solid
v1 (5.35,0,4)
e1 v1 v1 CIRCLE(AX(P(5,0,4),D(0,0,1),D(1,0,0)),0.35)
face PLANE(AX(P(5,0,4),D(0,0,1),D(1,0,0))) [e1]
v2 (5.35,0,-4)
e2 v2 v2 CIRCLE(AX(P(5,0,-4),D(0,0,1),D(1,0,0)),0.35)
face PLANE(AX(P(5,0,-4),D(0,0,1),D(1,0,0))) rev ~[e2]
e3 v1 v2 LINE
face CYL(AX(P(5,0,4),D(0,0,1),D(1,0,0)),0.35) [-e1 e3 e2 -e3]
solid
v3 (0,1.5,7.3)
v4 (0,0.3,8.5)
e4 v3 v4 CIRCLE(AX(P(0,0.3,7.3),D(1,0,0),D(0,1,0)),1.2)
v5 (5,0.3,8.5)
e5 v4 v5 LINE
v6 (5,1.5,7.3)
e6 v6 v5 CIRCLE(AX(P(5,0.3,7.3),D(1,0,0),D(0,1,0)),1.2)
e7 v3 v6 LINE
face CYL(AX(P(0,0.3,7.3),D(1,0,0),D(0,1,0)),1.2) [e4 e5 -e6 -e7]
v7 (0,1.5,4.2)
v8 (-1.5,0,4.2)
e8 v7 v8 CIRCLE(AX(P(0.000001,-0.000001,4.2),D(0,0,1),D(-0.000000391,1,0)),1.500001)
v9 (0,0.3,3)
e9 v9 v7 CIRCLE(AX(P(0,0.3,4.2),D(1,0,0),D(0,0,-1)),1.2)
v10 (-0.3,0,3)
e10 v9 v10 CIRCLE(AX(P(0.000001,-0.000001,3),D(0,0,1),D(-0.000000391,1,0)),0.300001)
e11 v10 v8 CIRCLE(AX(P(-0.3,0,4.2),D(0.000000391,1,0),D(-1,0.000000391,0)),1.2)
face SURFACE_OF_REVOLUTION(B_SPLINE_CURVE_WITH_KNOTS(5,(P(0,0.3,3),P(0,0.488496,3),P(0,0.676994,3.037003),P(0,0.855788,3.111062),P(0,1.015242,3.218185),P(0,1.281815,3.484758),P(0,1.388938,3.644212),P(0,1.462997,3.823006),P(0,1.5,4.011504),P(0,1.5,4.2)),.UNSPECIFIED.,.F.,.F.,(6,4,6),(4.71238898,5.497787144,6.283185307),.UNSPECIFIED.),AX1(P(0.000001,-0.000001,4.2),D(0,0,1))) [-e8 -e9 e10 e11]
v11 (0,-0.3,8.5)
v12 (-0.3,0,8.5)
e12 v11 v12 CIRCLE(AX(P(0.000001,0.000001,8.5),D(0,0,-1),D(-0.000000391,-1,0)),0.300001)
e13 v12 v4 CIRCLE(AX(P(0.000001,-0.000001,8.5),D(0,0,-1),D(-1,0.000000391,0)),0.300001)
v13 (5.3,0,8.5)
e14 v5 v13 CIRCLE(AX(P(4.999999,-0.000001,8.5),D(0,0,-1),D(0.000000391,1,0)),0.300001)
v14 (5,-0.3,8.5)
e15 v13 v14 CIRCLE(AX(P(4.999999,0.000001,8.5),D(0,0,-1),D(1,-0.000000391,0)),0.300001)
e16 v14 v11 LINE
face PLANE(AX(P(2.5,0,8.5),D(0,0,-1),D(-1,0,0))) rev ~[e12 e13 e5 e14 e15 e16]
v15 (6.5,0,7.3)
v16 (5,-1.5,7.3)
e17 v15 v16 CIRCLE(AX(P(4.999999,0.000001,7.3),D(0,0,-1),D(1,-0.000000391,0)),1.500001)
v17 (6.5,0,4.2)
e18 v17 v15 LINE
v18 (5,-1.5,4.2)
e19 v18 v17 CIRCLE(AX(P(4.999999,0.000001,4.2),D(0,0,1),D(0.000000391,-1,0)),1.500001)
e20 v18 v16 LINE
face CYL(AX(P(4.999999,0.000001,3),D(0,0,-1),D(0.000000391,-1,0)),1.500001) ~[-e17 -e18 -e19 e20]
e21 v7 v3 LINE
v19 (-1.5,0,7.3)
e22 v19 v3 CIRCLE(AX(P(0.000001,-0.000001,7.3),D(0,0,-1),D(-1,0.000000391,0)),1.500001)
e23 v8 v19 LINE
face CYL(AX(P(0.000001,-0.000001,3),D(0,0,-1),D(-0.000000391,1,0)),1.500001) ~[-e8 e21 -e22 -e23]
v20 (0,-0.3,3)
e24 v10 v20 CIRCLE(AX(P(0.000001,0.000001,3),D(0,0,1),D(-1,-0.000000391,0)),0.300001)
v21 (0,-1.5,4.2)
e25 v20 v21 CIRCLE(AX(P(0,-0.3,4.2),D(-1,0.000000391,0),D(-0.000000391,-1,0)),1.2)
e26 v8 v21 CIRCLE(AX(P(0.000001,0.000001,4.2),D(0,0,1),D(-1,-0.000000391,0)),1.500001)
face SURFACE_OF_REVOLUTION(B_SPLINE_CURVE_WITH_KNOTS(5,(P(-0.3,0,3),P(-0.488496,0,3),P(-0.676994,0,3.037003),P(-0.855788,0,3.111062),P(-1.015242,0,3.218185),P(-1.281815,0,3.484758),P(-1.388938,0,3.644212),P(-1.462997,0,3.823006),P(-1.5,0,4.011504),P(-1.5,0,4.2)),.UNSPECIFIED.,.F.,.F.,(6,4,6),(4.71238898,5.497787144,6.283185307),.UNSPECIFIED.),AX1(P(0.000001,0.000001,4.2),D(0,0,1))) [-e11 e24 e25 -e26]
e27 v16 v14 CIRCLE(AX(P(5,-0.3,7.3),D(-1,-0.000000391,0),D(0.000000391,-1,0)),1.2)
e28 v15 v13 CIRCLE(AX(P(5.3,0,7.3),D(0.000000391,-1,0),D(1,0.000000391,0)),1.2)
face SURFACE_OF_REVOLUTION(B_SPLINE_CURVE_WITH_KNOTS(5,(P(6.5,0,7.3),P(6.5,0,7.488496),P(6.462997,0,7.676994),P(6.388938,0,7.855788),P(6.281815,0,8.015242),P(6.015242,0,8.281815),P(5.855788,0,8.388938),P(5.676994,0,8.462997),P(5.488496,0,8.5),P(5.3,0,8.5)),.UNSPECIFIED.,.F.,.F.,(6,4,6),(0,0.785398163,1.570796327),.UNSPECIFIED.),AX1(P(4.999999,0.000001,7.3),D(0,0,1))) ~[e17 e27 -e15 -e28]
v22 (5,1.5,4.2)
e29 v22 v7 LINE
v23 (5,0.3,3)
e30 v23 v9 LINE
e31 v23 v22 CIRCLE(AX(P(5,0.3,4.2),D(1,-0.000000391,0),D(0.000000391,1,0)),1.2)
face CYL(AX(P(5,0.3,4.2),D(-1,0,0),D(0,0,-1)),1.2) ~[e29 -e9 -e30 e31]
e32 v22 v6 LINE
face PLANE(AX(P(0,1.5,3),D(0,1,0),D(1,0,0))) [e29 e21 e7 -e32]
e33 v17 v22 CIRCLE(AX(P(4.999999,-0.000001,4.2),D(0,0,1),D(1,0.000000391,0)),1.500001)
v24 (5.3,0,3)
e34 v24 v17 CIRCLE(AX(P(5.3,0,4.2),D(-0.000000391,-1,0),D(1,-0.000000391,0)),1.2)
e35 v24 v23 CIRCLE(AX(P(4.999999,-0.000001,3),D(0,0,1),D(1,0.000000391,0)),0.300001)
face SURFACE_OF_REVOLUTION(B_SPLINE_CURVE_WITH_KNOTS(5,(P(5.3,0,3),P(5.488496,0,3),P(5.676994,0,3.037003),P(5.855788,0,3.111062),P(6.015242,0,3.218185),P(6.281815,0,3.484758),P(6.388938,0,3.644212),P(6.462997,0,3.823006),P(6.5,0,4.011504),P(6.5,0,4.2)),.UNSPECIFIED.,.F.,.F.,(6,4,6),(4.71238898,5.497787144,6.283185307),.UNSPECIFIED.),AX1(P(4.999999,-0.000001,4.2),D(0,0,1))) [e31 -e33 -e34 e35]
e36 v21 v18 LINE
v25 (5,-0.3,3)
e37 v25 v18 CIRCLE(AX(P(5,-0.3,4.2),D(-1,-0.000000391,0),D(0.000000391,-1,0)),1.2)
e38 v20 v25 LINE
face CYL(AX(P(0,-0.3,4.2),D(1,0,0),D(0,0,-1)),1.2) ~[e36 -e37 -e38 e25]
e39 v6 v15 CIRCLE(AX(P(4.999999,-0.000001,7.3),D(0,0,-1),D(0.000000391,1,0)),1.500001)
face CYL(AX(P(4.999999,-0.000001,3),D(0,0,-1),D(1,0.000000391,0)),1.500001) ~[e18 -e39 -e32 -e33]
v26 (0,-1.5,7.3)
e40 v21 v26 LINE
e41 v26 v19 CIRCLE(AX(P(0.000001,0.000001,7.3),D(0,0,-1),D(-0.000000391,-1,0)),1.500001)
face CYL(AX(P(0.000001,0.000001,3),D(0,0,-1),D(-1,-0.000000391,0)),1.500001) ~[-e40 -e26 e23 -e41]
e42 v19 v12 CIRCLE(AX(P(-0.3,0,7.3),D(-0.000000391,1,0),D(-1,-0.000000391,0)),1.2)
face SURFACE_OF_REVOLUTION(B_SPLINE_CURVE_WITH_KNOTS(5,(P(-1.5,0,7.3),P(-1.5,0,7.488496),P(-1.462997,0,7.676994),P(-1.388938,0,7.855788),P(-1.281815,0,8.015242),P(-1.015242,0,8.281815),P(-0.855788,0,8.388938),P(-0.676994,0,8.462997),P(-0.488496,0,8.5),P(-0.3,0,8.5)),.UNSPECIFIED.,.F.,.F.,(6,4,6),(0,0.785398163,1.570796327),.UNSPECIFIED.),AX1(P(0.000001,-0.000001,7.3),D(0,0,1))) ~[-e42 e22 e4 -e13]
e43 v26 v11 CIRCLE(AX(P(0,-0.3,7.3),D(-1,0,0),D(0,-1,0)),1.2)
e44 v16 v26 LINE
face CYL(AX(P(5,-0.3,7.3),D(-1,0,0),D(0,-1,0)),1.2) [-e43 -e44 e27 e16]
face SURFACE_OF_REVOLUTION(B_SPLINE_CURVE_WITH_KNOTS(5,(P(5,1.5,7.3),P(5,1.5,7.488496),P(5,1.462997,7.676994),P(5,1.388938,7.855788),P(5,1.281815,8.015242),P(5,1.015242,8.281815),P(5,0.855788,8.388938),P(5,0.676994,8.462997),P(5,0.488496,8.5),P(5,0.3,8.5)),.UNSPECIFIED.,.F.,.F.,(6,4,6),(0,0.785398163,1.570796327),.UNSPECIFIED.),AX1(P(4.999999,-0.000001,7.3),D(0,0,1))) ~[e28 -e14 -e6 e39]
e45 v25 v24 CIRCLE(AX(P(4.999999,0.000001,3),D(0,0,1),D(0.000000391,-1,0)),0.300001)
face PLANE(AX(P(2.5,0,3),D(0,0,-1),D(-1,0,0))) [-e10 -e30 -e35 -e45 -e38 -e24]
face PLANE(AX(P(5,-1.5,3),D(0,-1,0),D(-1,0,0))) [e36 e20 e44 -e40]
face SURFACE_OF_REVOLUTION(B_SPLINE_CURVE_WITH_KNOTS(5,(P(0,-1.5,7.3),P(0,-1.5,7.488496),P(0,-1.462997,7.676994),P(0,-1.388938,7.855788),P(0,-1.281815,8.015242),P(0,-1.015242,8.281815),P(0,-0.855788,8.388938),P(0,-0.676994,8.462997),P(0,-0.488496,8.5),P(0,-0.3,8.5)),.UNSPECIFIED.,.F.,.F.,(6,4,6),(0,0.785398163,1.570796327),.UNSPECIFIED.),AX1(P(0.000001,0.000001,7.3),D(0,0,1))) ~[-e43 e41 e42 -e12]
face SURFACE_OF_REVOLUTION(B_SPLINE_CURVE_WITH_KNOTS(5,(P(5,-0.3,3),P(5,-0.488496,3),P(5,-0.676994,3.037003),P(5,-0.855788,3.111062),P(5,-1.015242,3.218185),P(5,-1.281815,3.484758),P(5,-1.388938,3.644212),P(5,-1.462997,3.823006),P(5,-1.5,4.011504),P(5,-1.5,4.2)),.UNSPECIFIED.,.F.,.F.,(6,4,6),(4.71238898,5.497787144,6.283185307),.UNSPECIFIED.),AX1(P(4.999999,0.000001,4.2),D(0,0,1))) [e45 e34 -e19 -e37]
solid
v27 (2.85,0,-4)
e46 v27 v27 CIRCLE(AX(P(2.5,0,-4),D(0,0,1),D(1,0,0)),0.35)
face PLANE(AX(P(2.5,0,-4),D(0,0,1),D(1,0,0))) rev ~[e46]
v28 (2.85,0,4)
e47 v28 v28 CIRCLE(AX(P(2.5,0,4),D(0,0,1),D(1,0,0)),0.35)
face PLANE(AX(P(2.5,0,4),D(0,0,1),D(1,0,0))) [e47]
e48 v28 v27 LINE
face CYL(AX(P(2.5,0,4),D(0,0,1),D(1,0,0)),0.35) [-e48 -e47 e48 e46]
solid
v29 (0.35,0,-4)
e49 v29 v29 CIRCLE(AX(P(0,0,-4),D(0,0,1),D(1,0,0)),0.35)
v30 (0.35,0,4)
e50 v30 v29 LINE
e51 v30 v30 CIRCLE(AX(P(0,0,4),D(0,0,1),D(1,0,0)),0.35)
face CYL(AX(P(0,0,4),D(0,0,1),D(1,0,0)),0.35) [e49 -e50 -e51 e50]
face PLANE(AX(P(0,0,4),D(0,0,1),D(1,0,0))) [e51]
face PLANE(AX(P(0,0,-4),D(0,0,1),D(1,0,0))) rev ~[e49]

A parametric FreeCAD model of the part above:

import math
import FreeCAD as App
import Part
import Sketcher
Q = App.Units.Quantity


def edges_at(feature, points):
    """Names of the edges that pass closest to the given points."""
    edges = feature.Shape.Edges
    near = lambda p: min(range(len(edges)), key=lambda i: edges[i].distToShape(Part.Vertex(*p))[0])
    return sorted({f"Edge{near(p) + 1}" for p in points})

doc = App.newDocument("Part")
body = doc.addObject("PartDesign::Body", "Body")
body.AllowCompound = True

# Sketch on XY plane
sketch1 = doc.addObject("Sketcher::SketchObject", "Sketch")
body.addObject(sketch1)
sketch1.AttachmentSupport = (doc.XY_Plane, [""])
sketch1.MapMode = "FlatFace"
sketch1.AttachmentOffset = App.Placement(App.Vector(0, 0, 4), App.Rotation())
sketch1.addGeometry([
    Part.Circle(App.Vector(0, 0, 0), App.Vector(0, 0, 1), 0.35),
    Part.Circle(App.Vector(5, 0, 0), App.Vector(0, 0, 1), 0.35),
    Part.Circle(App.Vector(2.5, 0, 0), App.Vector(0, 0, 1), 0.35),
], False)
sketch1.addConstraint([
    Sketcher.Constraint("Coincident", 0, 3, -1, 1),
    Sketcher.Constraint("Equal", 0, 1),
    Sketcher.Constraint("Equal", 1, 2),
    Sketcher.Constraint("PointOnObject", 1, 3, -1),
    Sketcher.Constraint("PointOnObject", 2, 3, -1),
    Sketcher.Constraint("Diameter", 0, Q("0.7 mm")),
    Sketcher.Constraint("DistanceX", -1, 1, 1, 3, Q("5 mm")),
    Sketcher.Constraint("DistanceX", -1, 1, 2, 3, Q("2.5 mm")),
])
pad1 = doc.addObject("PartDesign::Pad", "Pad")
body.addObject(pad1)
pad1.Profile = sketch1
pad1.Length = 8
pad1.Reversed = True
body2 = doc.addObject("PartDesign::Body", "Body001")

# Sketch on XY plane
sketch2 = doc.addObject("Sketcher::SketchObject", "Sketch001")
body2.addObject(sketch2)
sketch2.AttachmentSupport = (doc.getObject("XY_Plane001"), [""])
sketch2.MapMode = "FlatFace"
sketch2.AttachmentOffset = App.Placement(App.Vector(0, 0, 3), App.Rotation())
sketch2.addGeometry([
    Part.LineSegment(App.Vector(5, 1.5, 0), App.Vector(0, 1.5, 0)),  # 0
    Part.ArcOfCircle(Part.Circle(App.Vector(0.000001, -0.000001, 0), App.Vector(0, 0, 1), 1.500001), math.radians(90.000022), math.radians(179.999978)),  # 1
    Part.ArcOfCircle(Part.Circle(App.Vector(0.000001, 0.000001, 0), App.Vector(0, 0, 1), 1.500001), math.radians(-179.999978), math.radians(-90.000022)),  # 2
    Part.LineSegment(App.Vector(0, -1.5, 0), App.Vector(5, -1.5, 0)),  # 3
    Part.ArcOfCircle(Part.Circle(App.Vector(4.999999, 0.000001, 0), App.Vector(0, 0, 1), 1.500001), math.radians(-89.999978), math.radians(-0.000022)),  # 4
    Part.ArcOfCircle(Part.Circle(App.Vector(4.999999, -0.000001, 0), App.Vector(0, 0, 1), 1.500001), math.radians(0.000022), math.radians(89.999978)),  # 5
], False)
sketch2.addConstraint([
    Sketcher.Constraint("Tangent", 0, 2, 1, 1),
    Sketcher.Constraint("Tangent", 1, 2, 2, 1),
    Sketcher.Constraint("Tangent", 2, 2, 3, 1),
    Sketcher.Constraint("Tangent", 3, 2, 4, 1),
    Sketcher.Constraint("Tangent", 4, 2, 5, 1),
    Sketcher.Constraint("Tangent", 5, 2, 0, 1),
    Sketcher.Constraint("Horizontal", 0),
    Sketcher.Constraint("Horizontal", 3),
    Sketcher.Constraint("Coincident", 1, 3, -1, 1),
    Sketcher.Constraint("Equal", 1, 2),
    Sketcher.Constraint("Equal", 2, 4),
    Sketcher.Constraint("PointOnObject", 1, 2, -1),
    Sketcher.Constraint("PointOnObject", 4, 2, -1),
    Sketcher.Constraint("Radius", 1, Q("1.500001 mm")),
    Sketcher.Constraint("DistanceX", 0, 2, 0, 1, Q("5 mm")),
])
pad2 = doc.addObject("PartDesign::Pad", "Pad001")
body2.addObject(pad2)
pad2.Profile = sketch2
pad2.Length = 5.5
doc.recompute()

fillet = doc.addObject("PartDesign::Fillet", "Fillet")
body2.addObject(fillet)
fillet.Base = (pad2, edges_at(pad2, [
    (2.5, 1.5, 8.5),
    (-1.061, 1.061, 8.5),
    (-1.061, -1.061, 8.5),
    (2.5, -1.5, 8.5),
    (6.061, -1.061, 8.5),
    (6.061, 1.061, 8.5),
]))
fillet.Radius = 1.2
doc.recompute()

fillet2 = doc.addObject("PartDesign::Fillet", "Fillet001")
body2.addObject(fillet2)
fillet2.Base = (fillet, edges_at(fillet, [
    (6.061, -1.061, 3),
    (6.061, 1.061, 3),
    (2.5, 1.5, 3),
    (2.5, -1.5, 3),
    (-1.061, -1.061, 3),
    (-1.061, 1.061, 3),
]))
fillet2.Radius = 1.2

doc.recompute()
